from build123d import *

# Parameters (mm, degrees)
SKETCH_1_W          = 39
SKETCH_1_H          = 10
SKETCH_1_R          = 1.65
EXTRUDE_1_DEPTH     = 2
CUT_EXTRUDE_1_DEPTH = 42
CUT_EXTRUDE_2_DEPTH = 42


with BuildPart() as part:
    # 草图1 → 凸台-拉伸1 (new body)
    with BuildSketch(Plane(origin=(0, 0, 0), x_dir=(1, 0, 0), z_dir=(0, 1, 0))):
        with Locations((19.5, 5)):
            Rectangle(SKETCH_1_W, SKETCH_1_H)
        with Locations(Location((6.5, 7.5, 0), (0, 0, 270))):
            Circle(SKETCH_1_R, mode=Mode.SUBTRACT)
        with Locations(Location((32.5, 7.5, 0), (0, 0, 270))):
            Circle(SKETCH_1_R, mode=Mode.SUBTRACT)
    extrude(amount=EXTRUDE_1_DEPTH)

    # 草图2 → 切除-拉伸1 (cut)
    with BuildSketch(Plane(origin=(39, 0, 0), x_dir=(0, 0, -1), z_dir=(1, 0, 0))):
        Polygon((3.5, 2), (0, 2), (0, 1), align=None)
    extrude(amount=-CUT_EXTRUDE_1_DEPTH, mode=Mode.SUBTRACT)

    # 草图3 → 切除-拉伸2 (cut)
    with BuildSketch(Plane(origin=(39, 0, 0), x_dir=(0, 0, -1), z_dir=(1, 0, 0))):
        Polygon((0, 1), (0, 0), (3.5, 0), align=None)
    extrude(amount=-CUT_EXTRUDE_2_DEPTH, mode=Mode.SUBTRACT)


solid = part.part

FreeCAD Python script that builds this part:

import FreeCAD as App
import Part
import Sketcher

V = App.Vector


def add_polygon(sketch, points):
    """Adds a closed chain of lines whose ends are joined by coincident constraints."""
    first, n = sketch.GeometryCount, len(points)
    for a, b in zip(points, points[1:] + points[:1]):
        sketch.addGeometry(Part.LineSegment(App.Vector(*a, 0), App.Vector(*b, 0)), False)
    for i in range(n):
        sketch.addConstraint(Sketcher.Constraint("Coincident", first + i, 2, first + (i + 1) % n, 1))

doc = App.newDocument("Part")
body = doc.addObject("PartDesign::Body", "Body")

sketch1 = body.newObject("Sketcher::SketchObject", "Sketch")
sketch1.AttachmentSupport = (doc.getObject("XZ_Plane"), [""])
sketch1.MapMode = "FlatFace"
add_polygon(sketch1, [(0, -10), (0, 0), (39, 0), (39, -10)])
sketch1.addGeometry(Part.Circle(V(6.5, -7.5, 0), V(0, 0, 1), 1.6), False)
sketch1.addGeometry(Part.Circle(V(32.5, -7.5, 0), V(0, 0, 1), 1.6), False)
sketch1.addConstraint([
    Sketcher.Constraint("Vertical", 0),
    Sketcher.Constraint("Horizontal", 1),
    Sketcher.Constraint("Vertical", 2),
    Sketcher.Constraint("Horizontal", 3),
    Sketcher.Constraint("Coincident", 0, 2, -1, 1),
    Sketcher.Constraint("Equal", 4, 5),
    Sketcher.Constraint("Horizontal", 4, 3, 5, 3),
    Sketcher.Constraint("Diameter", 4, 3.3),
    Sketcher.Constraint("DistanceX", 1, 1, 1, 2, 39.0),
    Sketcher.Constraint("DistanceY", 0, 1, 0, 2, 10.0),
    Sketcher.Constraint("DistanceX", 4, 3, 5, 3, 26.0),
    Sketcher.Constraint("DistanceX", -1, 1, 4, 3, 6.5),
    Sketcher.Constraint("DistanceY", 4, 3, -1, 1, 7.5),
])
pad1 = body.newObject("PartDesign::Pad", "Pad")
pad1.Profile = sketch1
pad1.Length = 2
pad1.Reversed = True

sketch2 = body.newObject("Sketcher::SketchObject", "Sketch001")
sketch2.AttachmentSupport = (doc.getObject("YZ_Plane"), [""])
sketch2.MapMode = "FlatFace"
sketch2.AttachmentOffset = App.Placement(V(0, 0, 39), App.Rotation())
add_polygon(sketch2, [(2, -3.5), (2, 0), (1, 0)])
sketch2.addConstraint([
    Sketcher.Constraint("Vertical", 0),
    Sketcher.Constraint("Horizontal", 1),
    Sketcher.Constraint("PointOnObject", 0, 2, -1),
    Sketcher.Constraint("DistanceX", 1, 2, 1, 1, 1.0),
    Sketcher.Constraint("DistanceY", 0, 1, 0, 2, 3.5),
    Sketcher.Constraint("DistanceX", -1, 1, 0, 2, 2.0),
])
pocket1 = body.newObject("PartDesign::Pocket", "Pocket")
pocket1.Profile = sketch2
pocket1.Length = 42

sketch3 = body.newObject("Sketcher::SketchObject", "Sketch002")
sketch3.AttachmentSupport = (doc.getObject("YZ_Plane"), [""])
sketch3.MapMode = "FlatFace"
sketch3.AttachmentOffset = App.Placement(V(0, 0, 39), App.Rotation())
add_polygon(sketch3, [(1, 0), (0, 0), (0, -3.5)])
sketch3.addConstraint([
    Sketcher.Constraint("Horizontal", 0),
    Sketcher.Constraint("Vertical", 1),
    Sketcher.Constraint("Coincident", 0, 2, -1, 1),
    Sketcher.Constraint("DistanceX", 0, 2, 0, 1, 1.0),
    Sketcher.Constraint("DistanceY", 1, 2, 1, 1, 3.5),
])
pocket2 = body.newObject("PartDesign::Pocket", "Pocket001")
pocket2.Profile = sketch3
pocket2.Length = 42

doc.recompute()
